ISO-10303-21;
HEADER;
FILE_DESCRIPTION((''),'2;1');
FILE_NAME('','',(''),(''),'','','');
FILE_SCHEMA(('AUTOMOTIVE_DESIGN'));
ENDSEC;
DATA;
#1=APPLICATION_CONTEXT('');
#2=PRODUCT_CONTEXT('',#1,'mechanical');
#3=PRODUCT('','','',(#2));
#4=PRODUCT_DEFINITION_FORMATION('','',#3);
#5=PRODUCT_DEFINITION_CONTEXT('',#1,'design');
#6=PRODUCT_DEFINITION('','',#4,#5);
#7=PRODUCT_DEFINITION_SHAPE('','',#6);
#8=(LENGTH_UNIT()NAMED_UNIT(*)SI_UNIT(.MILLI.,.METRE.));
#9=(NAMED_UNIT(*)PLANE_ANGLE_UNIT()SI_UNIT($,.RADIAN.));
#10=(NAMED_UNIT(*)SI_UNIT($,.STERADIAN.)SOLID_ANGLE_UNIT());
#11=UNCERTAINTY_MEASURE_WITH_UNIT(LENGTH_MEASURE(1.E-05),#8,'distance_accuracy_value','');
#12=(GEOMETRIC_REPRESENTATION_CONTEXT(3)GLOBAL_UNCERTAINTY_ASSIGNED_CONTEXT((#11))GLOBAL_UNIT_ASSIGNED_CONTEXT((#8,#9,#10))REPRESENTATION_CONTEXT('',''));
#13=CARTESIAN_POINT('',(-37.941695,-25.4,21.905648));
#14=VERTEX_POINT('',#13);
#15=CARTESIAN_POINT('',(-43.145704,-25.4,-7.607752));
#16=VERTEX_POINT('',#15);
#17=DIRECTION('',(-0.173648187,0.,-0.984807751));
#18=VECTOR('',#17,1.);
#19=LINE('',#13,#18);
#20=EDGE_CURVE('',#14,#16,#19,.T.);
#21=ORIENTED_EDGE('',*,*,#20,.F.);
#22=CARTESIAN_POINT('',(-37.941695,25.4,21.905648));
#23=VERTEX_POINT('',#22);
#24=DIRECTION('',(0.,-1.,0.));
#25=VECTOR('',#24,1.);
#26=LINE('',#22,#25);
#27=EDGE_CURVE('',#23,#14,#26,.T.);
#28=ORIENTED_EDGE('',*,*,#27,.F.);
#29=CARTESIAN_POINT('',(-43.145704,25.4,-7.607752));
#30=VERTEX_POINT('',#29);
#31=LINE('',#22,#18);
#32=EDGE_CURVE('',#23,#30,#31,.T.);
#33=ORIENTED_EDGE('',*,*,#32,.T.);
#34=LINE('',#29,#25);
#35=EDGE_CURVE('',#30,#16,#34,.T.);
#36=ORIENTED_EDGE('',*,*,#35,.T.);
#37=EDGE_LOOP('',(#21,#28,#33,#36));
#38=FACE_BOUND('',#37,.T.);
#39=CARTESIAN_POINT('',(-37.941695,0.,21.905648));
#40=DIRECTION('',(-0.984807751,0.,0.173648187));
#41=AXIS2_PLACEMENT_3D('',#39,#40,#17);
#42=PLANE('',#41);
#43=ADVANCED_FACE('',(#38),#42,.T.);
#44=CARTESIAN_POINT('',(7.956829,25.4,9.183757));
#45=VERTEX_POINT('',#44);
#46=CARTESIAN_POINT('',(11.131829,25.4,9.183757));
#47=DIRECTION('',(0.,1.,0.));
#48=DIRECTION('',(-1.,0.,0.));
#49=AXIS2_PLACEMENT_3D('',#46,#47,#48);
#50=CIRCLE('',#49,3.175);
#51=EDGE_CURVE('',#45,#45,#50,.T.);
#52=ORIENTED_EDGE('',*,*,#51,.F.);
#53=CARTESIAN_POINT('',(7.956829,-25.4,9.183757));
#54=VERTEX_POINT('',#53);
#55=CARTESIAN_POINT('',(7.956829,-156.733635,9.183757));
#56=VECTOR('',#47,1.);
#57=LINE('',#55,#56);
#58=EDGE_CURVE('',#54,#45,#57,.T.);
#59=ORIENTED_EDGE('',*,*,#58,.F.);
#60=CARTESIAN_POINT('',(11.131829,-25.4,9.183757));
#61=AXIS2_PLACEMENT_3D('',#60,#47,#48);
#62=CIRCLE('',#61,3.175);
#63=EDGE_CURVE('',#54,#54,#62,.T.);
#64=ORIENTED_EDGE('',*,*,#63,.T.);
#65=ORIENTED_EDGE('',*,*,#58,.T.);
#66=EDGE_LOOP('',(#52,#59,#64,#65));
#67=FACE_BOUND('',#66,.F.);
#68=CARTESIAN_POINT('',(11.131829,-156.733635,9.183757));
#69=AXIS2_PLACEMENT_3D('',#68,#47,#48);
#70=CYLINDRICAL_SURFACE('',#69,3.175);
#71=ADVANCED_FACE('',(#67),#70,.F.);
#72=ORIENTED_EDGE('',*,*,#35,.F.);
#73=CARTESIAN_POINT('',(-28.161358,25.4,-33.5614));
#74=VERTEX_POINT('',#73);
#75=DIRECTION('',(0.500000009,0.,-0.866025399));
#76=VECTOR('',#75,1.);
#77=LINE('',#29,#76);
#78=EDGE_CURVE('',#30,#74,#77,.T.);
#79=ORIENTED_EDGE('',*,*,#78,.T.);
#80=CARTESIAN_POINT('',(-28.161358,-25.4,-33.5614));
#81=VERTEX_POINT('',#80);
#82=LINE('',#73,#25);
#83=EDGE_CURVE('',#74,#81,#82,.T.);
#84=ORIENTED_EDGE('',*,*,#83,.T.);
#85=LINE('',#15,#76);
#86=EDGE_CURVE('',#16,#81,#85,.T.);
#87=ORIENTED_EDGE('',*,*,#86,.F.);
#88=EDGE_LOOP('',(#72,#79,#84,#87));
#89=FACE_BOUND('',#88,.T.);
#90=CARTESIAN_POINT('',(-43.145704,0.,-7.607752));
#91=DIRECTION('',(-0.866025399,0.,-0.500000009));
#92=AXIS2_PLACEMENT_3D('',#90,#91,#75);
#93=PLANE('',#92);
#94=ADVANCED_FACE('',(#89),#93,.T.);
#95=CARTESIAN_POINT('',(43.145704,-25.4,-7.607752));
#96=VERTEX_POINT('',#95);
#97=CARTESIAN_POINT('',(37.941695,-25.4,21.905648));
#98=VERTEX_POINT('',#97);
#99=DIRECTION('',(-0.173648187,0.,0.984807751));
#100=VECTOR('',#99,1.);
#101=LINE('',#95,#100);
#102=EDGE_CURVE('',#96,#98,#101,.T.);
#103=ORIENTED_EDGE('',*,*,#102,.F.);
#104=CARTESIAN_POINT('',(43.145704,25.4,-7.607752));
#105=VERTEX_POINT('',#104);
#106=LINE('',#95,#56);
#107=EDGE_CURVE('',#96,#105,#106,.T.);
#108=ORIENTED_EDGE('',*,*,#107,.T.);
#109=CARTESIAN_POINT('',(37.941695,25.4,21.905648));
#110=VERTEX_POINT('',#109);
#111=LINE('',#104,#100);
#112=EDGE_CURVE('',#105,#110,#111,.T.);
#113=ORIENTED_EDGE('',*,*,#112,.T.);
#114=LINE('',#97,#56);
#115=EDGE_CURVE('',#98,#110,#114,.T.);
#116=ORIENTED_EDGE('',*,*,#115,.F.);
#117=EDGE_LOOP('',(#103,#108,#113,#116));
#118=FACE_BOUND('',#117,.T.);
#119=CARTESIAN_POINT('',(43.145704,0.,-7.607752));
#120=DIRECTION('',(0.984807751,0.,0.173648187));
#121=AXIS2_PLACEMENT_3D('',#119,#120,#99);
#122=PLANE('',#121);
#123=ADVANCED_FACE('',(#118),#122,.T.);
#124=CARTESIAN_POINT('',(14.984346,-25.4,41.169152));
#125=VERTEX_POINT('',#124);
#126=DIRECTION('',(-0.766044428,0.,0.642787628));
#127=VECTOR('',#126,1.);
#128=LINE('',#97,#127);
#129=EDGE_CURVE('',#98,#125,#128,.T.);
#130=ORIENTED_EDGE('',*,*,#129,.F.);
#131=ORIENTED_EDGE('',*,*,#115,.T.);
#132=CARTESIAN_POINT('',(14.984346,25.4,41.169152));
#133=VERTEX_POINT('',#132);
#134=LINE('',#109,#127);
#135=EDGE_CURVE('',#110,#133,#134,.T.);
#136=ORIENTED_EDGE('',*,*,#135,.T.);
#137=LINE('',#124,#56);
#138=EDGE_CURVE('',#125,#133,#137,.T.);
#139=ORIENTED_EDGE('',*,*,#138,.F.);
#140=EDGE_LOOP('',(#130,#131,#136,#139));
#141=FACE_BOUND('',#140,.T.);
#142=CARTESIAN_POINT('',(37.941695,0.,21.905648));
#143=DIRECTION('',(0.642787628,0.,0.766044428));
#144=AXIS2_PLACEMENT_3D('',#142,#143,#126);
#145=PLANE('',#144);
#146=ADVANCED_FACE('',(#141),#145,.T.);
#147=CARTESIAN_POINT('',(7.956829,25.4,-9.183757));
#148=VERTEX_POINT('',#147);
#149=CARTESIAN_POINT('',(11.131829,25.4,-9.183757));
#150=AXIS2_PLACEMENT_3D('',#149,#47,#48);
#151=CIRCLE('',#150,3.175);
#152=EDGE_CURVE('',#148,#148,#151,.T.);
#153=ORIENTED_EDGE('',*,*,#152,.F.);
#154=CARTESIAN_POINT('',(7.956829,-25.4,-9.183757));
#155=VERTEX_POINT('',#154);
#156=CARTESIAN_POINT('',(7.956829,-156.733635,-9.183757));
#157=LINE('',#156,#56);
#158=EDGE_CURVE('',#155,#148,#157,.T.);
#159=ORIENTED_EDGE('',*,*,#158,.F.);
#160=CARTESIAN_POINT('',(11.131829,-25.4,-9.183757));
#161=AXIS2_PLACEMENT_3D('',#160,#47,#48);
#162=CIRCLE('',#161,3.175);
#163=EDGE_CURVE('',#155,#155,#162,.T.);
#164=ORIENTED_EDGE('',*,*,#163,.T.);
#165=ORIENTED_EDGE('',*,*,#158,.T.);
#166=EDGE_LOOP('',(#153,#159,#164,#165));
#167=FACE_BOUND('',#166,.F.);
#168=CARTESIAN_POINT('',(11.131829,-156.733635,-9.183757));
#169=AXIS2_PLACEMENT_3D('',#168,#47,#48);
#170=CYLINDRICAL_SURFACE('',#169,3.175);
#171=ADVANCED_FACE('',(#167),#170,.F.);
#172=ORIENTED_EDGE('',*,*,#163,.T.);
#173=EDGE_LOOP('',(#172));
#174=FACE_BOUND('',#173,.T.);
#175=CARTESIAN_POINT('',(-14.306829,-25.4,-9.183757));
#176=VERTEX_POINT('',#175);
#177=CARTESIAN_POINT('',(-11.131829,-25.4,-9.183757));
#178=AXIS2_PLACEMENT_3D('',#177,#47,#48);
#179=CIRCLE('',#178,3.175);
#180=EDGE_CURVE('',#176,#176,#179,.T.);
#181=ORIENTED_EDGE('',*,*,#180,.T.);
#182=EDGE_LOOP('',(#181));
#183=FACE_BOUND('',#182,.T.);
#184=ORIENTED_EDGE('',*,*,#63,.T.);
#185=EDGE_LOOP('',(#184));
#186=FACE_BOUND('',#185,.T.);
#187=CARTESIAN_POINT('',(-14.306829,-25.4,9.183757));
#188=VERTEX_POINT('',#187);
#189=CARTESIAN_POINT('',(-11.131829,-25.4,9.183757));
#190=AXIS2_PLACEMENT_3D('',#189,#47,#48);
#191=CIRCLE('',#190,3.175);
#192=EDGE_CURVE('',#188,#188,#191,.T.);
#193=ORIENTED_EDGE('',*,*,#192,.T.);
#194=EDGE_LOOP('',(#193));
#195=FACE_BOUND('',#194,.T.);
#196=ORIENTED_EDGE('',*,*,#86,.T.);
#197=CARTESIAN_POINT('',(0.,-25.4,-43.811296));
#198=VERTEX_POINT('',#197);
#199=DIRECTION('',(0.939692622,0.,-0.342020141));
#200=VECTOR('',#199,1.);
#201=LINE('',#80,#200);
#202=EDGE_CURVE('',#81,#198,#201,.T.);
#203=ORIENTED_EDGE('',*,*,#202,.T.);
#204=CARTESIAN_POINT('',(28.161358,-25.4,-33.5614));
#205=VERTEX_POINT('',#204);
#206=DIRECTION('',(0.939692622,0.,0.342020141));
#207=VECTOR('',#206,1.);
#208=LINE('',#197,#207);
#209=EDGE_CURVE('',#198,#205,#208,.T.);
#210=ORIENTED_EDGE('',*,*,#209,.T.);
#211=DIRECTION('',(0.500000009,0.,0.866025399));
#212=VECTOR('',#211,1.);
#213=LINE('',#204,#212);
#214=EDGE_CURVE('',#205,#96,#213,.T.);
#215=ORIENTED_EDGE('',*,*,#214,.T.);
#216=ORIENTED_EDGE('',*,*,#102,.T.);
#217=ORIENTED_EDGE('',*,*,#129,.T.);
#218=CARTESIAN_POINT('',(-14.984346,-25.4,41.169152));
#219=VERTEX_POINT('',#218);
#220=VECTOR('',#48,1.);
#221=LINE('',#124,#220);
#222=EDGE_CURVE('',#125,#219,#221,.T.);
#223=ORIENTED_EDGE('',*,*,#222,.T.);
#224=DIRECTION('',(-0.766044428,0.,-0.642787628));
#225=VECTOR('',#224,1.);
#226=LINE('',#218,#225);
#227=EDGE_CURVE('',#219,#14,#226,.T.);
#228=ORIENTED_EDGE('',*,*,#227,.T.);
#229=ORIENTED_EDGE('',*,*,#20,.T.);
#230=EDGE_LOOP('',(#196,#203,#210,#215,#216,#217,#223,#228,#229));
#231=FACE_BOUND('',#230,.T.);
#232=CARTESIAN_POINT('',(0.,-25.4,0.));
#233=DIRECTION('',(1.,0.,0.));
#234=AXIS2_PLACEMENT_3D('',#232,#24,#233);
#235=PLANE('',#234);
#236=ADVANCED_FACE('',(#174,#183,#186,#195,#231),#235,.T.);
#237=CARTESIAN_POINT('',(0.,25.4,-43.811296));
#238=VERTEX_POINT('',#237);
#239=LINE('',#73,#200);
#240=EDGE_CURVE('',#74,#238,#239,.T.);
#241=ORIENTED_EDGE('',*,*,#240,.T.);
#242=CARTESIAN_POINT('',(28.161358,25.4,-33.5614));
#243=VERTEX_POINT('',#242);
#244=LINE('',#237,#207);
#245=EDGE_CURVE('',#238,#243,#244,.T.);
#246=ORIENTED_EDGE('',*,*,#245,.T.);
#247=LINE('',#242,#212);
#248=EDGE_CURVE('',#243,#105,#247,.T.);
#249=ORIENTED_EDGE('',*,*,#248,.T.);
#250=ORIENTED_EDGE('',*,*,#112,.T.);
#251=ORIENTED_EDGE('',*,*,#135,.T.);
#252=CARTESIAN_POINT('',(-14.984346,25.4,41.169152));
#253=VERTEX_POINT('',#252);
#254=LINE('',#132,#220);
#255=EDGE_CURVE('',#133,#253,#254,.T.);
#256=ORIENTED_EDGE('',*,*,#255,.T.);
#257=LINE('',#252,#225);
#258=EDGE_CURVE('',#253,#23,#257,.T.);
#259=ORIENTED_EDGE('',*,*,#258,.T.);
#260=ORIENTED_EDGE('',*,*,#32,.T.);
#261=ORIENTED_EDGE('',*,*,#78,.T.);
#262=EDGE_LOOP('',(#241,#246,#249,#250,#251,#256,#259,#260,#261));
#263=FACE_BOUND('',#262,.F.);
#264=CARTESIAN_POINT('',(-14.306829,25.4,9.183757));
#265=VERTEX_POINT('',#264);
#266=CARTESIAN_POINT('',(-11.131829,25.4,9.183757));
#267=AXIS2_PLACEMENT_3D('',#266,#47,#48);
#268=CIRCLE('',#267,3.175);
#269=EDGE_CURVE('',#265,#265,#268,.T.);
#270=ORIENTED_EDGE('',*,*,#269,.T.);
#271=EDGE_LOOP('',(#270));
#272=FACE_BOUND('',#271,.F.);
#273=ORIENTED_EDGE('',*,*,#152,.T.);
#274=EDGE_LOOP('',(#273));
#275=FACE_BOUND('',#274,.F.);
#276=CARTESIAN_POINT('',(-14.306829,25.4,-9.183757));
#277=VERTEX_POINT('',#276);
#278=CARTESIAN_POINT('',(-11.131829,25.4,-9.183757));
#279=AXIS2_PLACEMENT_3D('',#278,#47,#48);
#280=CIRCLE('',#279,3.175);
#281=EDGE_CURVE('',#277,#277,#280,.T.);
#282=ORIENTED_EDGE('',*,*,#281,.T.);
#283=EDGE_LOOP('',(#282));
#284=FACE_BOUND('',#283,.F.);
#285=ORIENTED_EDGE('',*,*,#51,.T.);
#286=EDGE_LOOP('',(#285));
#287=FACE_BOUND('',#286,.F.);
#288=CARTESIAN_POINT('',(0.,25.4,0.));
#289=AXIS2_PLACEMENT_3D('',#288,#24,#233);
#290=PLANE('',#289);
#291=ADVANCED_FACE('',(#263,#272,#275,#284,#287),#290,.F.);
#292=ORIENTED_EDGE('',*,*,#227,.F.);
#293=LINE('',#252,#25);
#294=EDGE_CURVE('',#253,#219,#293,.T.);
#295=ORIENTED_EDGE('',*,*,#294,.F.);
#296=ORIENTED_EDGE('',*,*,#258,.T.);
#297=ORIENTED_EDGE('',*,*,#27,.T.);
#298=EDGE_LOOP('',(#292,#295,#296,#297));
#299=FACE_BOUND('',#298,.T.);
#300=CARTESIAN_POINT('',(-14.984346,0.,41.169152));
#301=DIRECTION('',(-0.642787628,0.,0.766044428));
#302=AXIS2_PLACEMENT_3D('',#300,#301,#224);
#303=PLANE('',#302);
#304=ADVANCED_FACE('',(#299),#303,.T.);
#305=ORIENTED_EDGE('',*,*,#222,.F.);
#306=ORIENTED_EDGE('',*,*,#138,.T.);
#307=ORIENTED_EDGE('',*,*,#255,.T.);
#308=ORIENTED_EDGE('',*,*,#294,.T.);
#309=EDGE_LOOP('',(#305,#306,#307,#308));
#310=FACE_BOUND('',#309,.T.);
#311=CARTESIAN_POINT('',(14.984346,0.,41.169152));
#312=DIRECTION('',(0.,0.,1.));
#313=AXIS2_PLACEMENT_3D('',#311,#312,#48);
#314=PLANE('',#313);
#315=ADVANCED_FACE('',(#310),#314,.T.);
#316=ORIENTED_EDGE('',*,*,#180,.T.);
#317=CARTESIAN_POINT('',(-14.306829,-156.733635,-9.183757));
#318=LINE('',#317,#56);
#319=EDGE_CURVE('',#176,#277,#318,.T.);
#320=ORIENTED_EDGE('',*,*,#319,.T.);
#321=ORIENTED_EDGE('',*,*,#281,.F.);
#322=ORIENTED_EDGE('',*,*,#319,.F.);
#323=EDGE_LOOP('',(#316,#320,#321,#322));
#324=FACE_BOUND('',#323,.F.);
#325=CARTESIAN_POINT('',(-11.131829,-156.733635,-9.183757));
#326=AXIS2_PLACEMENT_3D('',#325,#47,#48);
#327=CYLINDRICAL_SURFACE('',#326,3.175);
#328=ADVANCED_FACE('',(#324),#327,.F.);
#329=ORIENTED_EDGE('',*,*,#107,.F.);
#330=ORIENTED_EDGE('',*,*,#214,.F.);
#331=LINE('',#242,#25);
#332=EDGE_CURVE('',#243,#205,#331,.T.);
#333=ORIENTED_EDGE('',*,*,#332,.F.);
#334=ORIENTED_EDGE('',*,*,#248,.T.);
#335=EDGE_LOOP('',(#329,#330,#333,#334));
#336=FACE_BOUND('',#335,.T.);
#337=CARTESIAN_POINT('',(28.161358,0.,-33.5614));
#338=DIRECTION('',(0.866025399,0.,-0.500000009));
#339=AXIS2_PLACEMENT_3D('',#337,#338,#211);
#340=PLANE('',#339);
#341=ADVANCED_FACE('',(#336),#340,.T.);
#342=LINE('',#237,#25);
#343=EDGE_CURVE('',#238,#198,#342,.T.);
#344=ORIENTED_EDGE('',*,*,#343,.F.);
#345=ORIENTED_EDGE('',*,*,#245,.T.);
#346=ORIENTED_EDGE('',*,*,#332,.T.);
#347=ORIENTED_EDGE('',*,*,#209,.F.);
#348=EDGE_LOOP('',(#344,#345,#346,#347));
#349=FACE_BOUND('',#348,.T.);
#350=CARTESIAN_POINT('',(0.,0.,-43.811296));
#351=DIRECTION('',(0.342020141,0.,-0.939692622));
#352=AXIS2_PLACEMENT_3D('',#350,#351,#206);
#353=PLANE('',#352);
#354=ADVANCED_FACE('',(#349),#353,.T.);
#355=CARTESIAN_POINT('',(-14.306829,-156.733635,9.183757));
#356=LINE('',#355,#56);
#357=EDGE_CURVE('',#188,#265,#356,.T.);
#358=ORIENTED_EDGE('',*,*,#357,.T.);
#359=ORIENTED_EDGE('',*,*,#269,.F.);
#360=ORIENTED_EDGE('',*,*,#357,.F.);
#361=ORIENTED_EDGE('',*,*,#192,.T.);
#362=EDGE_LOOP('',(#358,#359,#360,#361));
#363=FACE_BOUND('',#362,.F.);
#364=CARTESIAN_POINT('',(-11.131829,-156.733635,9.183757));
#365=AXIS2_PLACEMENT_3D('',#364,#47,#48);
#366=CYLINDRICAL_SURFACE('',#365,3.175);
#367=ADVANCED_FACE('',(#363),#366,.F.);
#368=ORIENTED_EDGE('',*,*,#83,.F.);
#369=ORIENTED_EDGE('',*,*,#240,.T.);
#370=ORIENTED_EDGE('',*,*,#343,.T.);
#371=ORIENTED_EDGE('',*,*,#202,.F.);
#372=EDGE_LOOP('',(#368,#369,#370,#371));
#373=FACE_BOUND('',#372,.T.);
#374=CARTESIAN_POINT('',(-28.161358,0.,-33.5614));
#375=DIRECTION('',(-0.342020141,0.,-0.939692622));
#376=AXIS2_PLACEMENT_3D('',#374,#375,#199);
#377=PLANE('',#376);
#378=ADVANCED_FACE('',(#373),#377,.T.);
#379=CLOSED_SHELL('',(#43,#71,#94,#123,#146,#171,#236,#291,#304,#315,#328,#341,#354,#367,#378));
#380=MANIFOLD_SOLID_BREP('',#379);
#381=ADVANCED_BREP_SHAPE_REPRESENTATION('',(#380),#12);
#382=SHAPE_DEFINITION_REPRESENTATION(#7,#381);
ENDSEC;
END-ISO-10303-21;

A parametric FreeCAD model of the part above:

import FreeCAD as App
import Part
import Sketcher

V = App.Vector
Q = App.Units.Quantity


def add_polygon(sketch, points):
    """Adds a closed chain of lines whose ends are joined by coincident constraints."""
    first, n = sketch.GeometryCount, len(points)
    for a, b in zip(points, points[1:] + points[:1]):
        sketch.addGeometry(Part.LineSegment(App.Vector(*a, 0), App.Vector(*b, 0)), False)
    for i in range(n):
        sketch.addConstraint(Sketcher.Constraint("Coincident", first + i, 2, first + (i + 1) % n, 1))

doc = App.newDocument("Part")
params = doc.addObject("Spreadsheet::Sheet", "Params")
for row, (alias, value) in enumerate([
    ("pad1_length", "1 in"),
    ("pad1_length2", "1 in"),
    ("sketch2_diameter", "0.25 in"),
    ("hole_diameter", "0.25 in"),
], start=1):
    params.set(f"A{row}", alias)
    params.set(f"B{row}", "=" + value)
    params.setAlias(f"B{row}", alias)

body = doc.addObject("PartDesign::Body", "Body")

# Sketch on XZ plane
sketch1 = body.newObject("Sketcher::SketchObject", "Sketch")
sketch1.AttachmentSupport = (doc.getObject("XZ_Plane"), [""])
sketch1.MapMode = "FlatFace"
add_polygon(sketch1, [(15, 41), (-15, 41), (-38, 22), (-43, -8), (-28, -34), (0, -44), (28, -34), (43, -8), (38, 22)])  # lines 0-8
sketch1.addConstraint(Sketcher.Constraint("Horizontal", 0))
sketch1.addConstraint(Sketcher.Constraint("Symmetric", 3, 2, 5, 2, -2))
sketch1.addConstraint(Sketcher.Constraint("Symmetric", 2, 2, 6, 2, -2))
sketch1.addConstraint(Sketcher.Constraint("Symmetric", 1, 2, 7, 2, -2))
sketch1.addConstraint(Sketcher.Constraint("PointOnObject", 4, 2, -2))
sketch1.addConstraint(Sketcher.Constraint("Equal", 1, 2))
sketch1.addConstraint(Sketcher.Constraint("Equal", 2, 3))
sketch1.addConstraint(Sketcher.Constraint("Equal", 3, 4))
sketch1.addConstraint(Sketcher.Constraint("Equal", 7, 8))
sketch1.addConstraint(Sketcher.Constraint("Angle", 1, Q("-139.999999 deg")))
sketch1.addConstraint(Sketcher.Constraint("Angle", 2, Q("-100.000001 deg")))
sketch1.addConstraint(Sketcher.Constraint("Angle", 3, Q("-59.999999 deg")))
sketch1.addConstraint(Sketcher.Constraint("Angle", 4, Q("-20 deg")))
sketch1.addConstraint(Sketcher.Constraint("DistanceY", 3, 2, -1, 1, Q("33.5614 mm")))
sketch1.addConstraint(Sketcher.Constraint("DistanceY", 2, 2, 1, 2, Q("29.5134 mm")))
pad1 = body.newObject("PartDesign::Pad", "Pad")
pad1.Profile = sketch1
pad1.Type = "TwoLengths"
pad1.setExpression("Length", "Params.pad1_length")
pad1.setExpression("Length2", "Params.pad1_length2")

# Sketch on XZ plane
sketch2 = body.newObject("Sketcher::SketchObject", "Sketch001")
sketch2.AttachmentSupport = (doc.getObject("XZ_Plane"), [""])
sketch2.MapMode = "FlatFace"
sketch2.AttachmentOffset = App.Placement(V(0, 0, 1 * 25.4), App.Rotation())
sketch2.addGeometry(Part.Circle(V(-11.1, -9.2, 0), V(0, 0, 1), 3.2), False)
sketch2.addGeometry(Part.Circle(V(-11.1, 9.2, 0), V(0, 0, 1), 3.2), False)
sketch2.addGeometry(Part.Circle(V(11.1, 9.2, 0), V(0, 0, 1), 3.2), False)
sketch2.addGeometry(Part.Circle(V(11.1, -9.2, 0), V(0, 0, 1), 3.2), False)
sketch2.addConstraint(Sketcher.Constraint("Equal", 0, 1))
sketch2.addConstraint(Sketcher.Constraint("Equal", 1, 2))
sketch2.addConstraint(Sketcher.Constraint("Equal", 2, 3))
sketch2.addConstraint(Sketcher.Constraint("Symmetric", 0, 3, 2, 3, -1, 1))
sketch2.addConstraint(Sketcher.Constraint("Symmetric", 1, 3, 3, 3, -1, 1))
sketch2.addConstraint(Sketcher.Constraint("Symmetric", 1, 3, 2, 3, -2))
sketch2.addConstraint(Sketcher.Constraint("Diameter", 0, Q("0.25 in")))
sketch2.addConstraint(Sketcher.Constraint("DistanceX", 0, 3, -1, 1, Q("11.131829 mm")))
sketch2.addConstraint(Sketcher.Constraint("DistanceY", 0, 3, -1, 1, Q("9.183757 mm")))
sketch2.setExpression("Constraints[6]", "Params.sketch2_diameter")
doc.recompute()
hole = body.newObject("PartDesign::Hole", "Hole")
hole.Profile = sketch2
hole.ThreadType = "None"
hole.setExpression("Diameter", "Params.hole_diameter")
hole.DepthType = "ThroughAll"

doc.recompute()
